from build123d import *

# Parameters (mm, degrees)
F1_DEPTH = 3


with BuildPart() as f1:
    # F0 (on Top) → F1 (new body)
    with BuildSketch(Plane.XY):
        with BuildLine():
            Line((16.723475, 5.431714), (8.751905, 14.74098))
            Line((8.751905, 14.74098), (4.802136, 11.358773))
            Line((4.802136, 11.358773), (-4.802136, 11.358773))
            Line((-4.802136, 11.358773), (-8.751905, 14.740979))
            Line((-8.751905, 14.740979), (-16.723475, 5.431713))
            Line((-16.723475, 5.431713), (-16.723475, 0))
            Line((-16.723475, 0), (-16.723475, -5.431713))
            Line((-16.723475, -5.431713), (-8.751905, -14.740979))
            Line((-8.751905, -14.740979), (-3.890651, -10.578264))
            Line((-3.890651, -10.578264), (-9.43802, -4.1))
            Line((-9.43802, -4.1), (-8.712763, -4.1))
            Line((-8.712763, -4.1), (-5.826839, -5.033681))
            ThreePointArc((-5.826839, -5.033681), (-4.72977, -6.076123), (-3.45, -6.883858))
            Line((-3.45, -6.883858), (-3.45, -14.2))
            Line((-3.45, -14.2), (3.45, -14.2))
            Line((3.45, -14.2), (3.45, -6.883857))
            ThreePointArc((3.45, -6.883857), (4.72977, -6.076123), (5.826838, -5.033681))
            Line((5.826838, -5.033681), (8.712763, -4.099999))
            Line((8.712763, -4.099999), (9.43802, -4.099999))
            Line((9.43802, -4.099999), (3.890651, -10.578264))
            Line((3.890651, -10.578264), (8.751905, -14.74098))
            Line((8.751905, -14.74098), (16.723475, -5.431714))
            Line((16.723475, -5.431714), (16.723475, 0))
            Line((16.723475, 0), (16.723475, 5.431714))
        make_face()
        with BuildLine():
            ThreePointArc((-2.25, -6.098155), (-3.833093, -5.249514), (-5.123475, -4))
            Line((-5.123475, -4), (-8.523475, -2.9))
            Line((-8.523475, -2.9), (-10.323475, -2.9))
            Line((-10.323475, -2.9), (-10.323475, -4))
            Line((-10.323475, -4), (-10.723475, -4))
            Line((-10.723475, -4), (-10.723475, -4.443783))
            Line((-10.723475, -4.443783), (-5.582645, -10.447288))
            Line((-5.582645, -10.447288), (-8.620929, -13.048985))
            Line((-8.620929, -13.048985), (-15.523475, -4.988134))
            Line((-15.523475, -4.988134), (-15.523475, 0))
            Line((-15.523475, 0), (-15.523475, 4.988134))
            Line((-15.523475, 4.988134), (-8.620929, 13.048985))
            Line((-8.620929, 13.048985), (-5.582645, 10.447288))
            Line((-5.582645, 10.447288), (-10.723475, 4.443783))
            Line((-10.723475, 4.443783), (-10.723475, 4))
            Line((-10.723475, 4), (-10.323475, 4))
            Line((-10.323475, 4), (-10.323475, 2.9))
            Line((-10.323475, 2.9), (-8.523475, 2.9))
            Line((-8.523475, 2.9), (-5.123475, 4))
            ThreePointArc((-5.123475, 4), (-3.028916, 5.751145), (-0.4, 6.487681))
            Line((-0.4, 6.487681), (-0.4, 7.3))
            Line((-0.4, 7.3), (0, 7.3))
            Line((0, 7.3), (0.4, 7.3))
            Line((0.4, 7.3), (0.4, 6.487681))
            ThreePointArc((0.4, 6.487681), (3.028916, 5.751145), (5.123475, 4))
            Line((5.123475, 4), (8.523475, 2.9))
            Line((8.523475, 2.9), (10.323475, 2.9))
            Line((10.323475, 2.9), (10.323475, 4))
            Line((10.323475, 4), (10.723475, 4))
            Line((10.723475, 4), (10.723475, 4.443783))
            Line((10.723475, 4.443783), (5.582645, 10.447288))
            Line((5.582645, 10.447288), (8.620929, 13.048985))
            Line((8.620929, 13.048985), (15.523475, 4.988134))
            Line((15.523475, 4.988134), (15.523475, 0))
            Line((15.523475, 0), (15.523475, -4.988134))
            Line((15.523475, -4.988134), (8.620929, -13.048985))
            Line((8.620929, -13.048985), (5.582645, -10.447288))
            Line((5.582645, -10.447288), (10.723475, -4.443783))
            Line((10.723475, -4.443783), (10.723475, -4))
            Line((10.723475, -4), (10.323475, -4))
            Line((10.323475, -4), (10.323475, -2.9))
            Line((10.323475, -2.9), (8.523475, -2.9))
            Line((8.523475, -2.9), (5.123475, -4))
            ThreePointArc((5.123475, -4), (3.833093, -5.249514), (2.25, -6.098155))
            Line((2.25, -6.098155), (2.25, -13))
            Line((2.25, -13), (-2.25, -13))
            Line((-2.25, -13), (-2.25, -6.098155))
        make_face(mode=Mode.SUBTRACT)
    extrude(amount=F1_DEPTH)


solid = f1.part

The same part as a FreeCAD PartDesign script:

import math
import FreeCAD as App
import Part
import Sketcher

V = App.Vector

doc = App.newDocument("Part")
body = doc.addObject("PartDesign::Body", "Body")

sketch1 = doc.addObject("Sketcher::SketchObject", "Sketch")
body.addObject(sketch1)
sketch1.AttachmentSupport = (doc.XY_Plane, [""])
sketch1.MapMode = "FlatFace"
sketch1.addGeometry(Part.LineSegment(V(16.723475, 5.431714, 0), V(8.751905, 14.74098, 0)), False)
sketch1.addGeometry(Part.LineSegment(V(8.751905, 14.74098, 0), V(4.802136, 11.358773, 0)), False)
sketch1.addGeometry(Part.LineSegment(V(4.802136, 11.358773, 0), V(-4.802136, 11.358773, 0)), False)
sketch1.addGeometry(Part.LineSegment(V(-4.802136, 11.358773, 0), V(-8.751905, 14.740979, 0)), False)
sketch1.addGeometry(Part.LineSegment(V(-8.751905, 14.740979, 0), V(-16.723475, 5.431713, 0)), False)
sketch1.addGeometry(Part.LineSegment(V(-16.723475, 5.431713, 0), V(-16.723475, -5.431713, 0)), False)
sketch1.addGeometry(Part.LineSegment(V(-16.723475, -5.431713, 0), V(-8.751905, -14.740979, 0)), False)
sketch1.addGeometry(Part.LineSegment(V(-8.751905, -14.740979, 0), V(-3.890651, -10.578264, 0)), False)
sketch1.addGeometry(Part.LineSegment(V(-3.890651, -10.578264, 0), V(-9.43802, -4.1, 0)), False)
sketch1.addGeometry(Part.LineSegment(V(-9.43802, -4.1, 0), V(-8.712763, -4.1, 0)), False)
sketch1.addGeometry(Part.LineSegment(V(-8.712763, -4.1, 0), V(-5.826839, -5.033681, 0)), False)
sketch1.addGeometry(Part.ArcOfCircle(Part.Circle(V(0.000009, 0.00001, 0), V(0, 0, 1), 7.700013), math.radians(-139.176955), math.radians(-116.618792)), False)
sketch1.addGeometry(Part.LineSegment(V(-3.45, -6.883858, 0), V(-3.45, -14.2, 0)), False)
sketch1.addGeometry(Part.LineSegment(V(-3.45, -14.2, 0), V(3.45, -14.2, 0)), False)
sketch1.addGeometry(Part.LineSegment(V(3.45, -14.2, 0), V(3.45, -6.883857, 0)), False)
sketch1.addGeometry(Part.ArcOfCircle(Part.Circle(V(0.000018, -0.000023, 0), V(0, 0, 1), 7.699971), math.radians(-63.38127), math.radians(-40.82299)), False)
sketch1.addGeometry(Part.LineSegment(V(5.826838, -5.033681, 0), V(8.712763, -4.099999, 0)), False)
sketch1.addGeometry(Part.LineSegment(V(8.712763, -4.099999, 0), V(9.43802, -4.099999, 0)), False)
sketch1.addGeometry(Part.LineSegment(V(9.43802, -4.099999, 0), V(3.890651, -10.578264, 0)), False)
sketch1.addGeometry(Part.LineSegment(V(3.890651, -10.578264, 0), V(8.751905, -14.74098, 0)), False)
sketch1.addGeometry(Part.LineSegment(V(8.751905, -14.74098, 0), V(16.723475, -5.431714, 0)), False)
sketch1.addGeometry(Part.LineSegment(V(16.723475, -5.431714, 0), V(16.723475, 5.431714, 0)), False)
sketch1.addGeometry(Part.LineSegment(V(-2.25, -13, 0), V(-2.25, -6.098155, 0)), False)
sketch1.addGeometry(Part.ArcOfCircle(Part.Circle(V(-0.000005, -0.000006, 0), V(0, 0, 1), 6.499992), math.radians(-142.020143), math.radians(-110.252227)), False)
sketch1.addGeometry(Part.LineSegment(V(-5.123475, -4, 0), V(-8.523475, -2.9, 0)), False)
sketch1.addGeometry(Part.LineSegment(V(-8.523475, -2.9, 0), V(-10.323475, -2.9, 0)), False)
sketch1.addGeometry(Part.LineSegment(V(-10.323475, -2.9, 0), V(-10.323475, -4, 0)), False)
sketch1.addGeometry(Part.LineSegment(V(-10.323475, -4, 0), V(-10.723475, -4, 0)), False)
sketch1.addGeometry(Part.LineSegment(V(-10.723475, -4, 0), V(-10.723475, -4.443783, 0)), False)
sketch1.addGeometry(Part.LineSegment(V(-10.723475, -4.443783, 0), V(-5.582645, -10.447288, 0)), False)
sketch1.addGeometry(Part.LineSegment(V(-5.582645, -10.447288, 0), V(-8.620929, -13.048985, 0)), False)
sketch1.addGeometry(Part.LineSegment(V(-8.620929, -13.048985, 0), V(-15.523475, -4.988134, 0)), False)
sketch1.addGeometry(Part.LineSegment(V(-15.523475, -4.988134, 0), V(-15.523475, 4.988134, 0)), False)
sketch1.addGeometry(Part.LineSegment(V(-15.523475, 4.988134, 0), V(-8.620929, 13.048985, 0)), False)
sketch1.addGeometry(Part.LineSegment(V(-8.620929, 13.048985, 0), V(-5.582645, 10.447288, 0)), False)
sketch1.addGeometry(Part.LineSegment(V(-5.582645, 10.447288, 0), V(-10.723475, 4.443783, 0)), False)
sketch1.addGeometry(Part.LineSegment(V(-10.723475, 4.443783, 0), V(-10.723475, 4, 0)), False)
sketch1.addGeometry(Part.LineSegment(V(-10.723475, 4, 0), V(-10.323475, 4, 0)), False)
sketch1.addGeometry(Part.LineSegment(V(-10.323475, 4, 0), V(-10.323475, 2.9, 0)), False)
sketch1.addGeometry(Part.LineSegment(V(-10.323475, 2.9, 0), V(-8.523475, 2.9, 0)), False)
sketch1.addGeometry(Part.LineSegment(V(-8.523475, 2.9, 0), V(-5.123475, 4, 0)), False)
sketch1.addGeometry(Part.ArcOfCircle(Part.Circle(V(0.000001, 0.000001, 0), V(0, 0, 1), 6.5), math.radians(93.528128), math.radians(142.020134)), False)
sketch1.addGeometry(Part.LineSegment(V(-0.4, 6.487681, 0), V(-0.4, 7.3, 0)), False)
sketch1.addGeometry(Part.LineSegment(V(-0.4, 7.3, 0), V(0.4, 7.3, 0)), False)
sketch1.addGeometry(Part.LineSegment(V(0.4, 7.3, 0), V(0.4, 6.487681, 0)), False)
sketch1.addGeometry(Part.ArcOfCircle(Part.Circle(V(-0.000001, 0.000001, 0), V(0, 0, 1), 6.5), math.radians(37.979866), math.radians(86.471872)), False)
sketch1.addGeometry(Part.LineSegment(V(5.123475, 4, 0), V(8.523475, 2.9, 0)), False)
sketch1.addGeometry(Part.LineSegment(V(8.523475, 2.9, 0), V(10.323475, 2.9, 0)), False)
sketch1.addGeometry(Part.LineSegment(V(10.323475, 2.9, 0), V(10.323475, 4, 0)), False)
sketch1.addGeometry(Part.LineSegment(V(10.323475, 4, 0), V(10.723475, 4, 0)), False)
sketch1.addGeometry(Part.LineSegment(V(10.723475, 4, 0), V(10.723475, 4.443783, 0)), False)
sketch1.addGeometry(Part.LineSegment(V(10.723475, 4.443783, 0), V(5.582645, 10.447288, 0)), False)
sketch1.addGeometry(Part.LineSegment(V(5.582645, 10.447288, 0), V(8.620929, 13.048985, 0)), False)
sketch1.addGeometry(Part.LineSegment(V(8.620929, 13.048985, 0), V(15.523475, 4.988134, 0)), False)
sketch1.addGeometry(Part.LineSegment(V(15.523475, 4.988134, 0), V(15.523475, -4.988134, 0)), False)
sketch1.addGeometry(Part.LineSegment(V(15.523475, -4.988134, 0), V(8.620929, -13.048985, 0)), False)
sketch1.addGeometry(Part.LineSegment(V(8.620929, -13.048985, 0), V(5.582645, -10.447288, 0)), False)
sketch1.addGeometry(Part.LineSegment(V(5.582645, -10.447288, 0), V(10.723475, -4.443783, 0)), False)
sketch1.addGeometry(Part.LineSegment(V(10.723475, -4.443783, 0), V(10.723475, -4, 0)), False)
sketch1.addGeometry(Part.LineSegment(V(10.723475, -4, 0), V(10.323475, -4, 0)), False)
sketch1.addGeometry(Part.LineSegment(V(10.323475, -4, 0), V(10.323475, -2.9, 0)), False)
sketch1.addGeometry(Part.LineSegment(V(10.323475, -2.9, 0), V(8.523475, -2.9, 0)), False)
sketch1.addGeometry(Part.LineSegment(V(8.523475, -2.9, 0), V(5.123475, -4, 0)), False)
sketch1.addGeometry(Part.ArcOfCircle(Part.Circle(V(0.000005, -0.000006, 0), V(0, 0, 1), 6.499992), math.radians(-69.747773), math.radians(-37.979857)), False)
sketch1.addGeometry(Part.LineSegment(V(2.25, -6.098155, 0), V(2.25, -13, 0)), False)
sketch1.addGeometry(Part.LineSegment(V(2.25, -13, 0), V(-2.25, -13, 0)), False)
sketch1.addConstraint(Sketcher.Constraint("Coincident", 0, 2, 1, 1))
sketch1.addConstraint(Sketcher.Constraint("Coincident", 1, 2, 2, 1))
sketch1.addConstraint(Sketcher.Constraint("Coincident", 2, 2, 3, 1))
sketch1.addConstraint(Sketcher.Constraint("Coincident", 3, 2, 4, 1))
sketch1.addConstraint(Sketcher.Constraint("Coincident", 4, 2, 5, 1))
sketch1.addConstraint(Sketcher.Constraint("Coincident", 5, 2, 6, 1))
sketch1.addConstraint(Sketcher.Constraint("Coincident", 6, 2, 7, 1))
sketch1.addConstraint(Sketcher.Constraint("Coincident", 7, 2, 8, 1))
sketch1.addConstraint(Sketcher.Constraint("Coincident", 8, 2, 9, 1))
sketch1.addConstraint(Sketcher.Constraint("Coincident", 9, 2, 10, 1))
sketch1.addConstraint(Sketcher.Constraint("Coincident", 10, 2, 11, 1))
sketch1.addConstraint(Sketcher.Constraint("Coincident", 11, 2, 12, 1))
sketch1.addConstraint(Sketcher.Constraint("Coincident", 12, 2, 13, 1))
sketch1.addConstraint(Sketcher.Constraint("Coincident", 13, 2, 14, 1))
sketch1.addConstraint(Sketcher.Constraint("Coincident", 14, 2, 15, 1))
sketch1.addConstraint(Sketcher.Constraint("Coincident", 15, 2, 16, 1))
sketch1.addConstraint(Sketcher.Constraint("Coincident", 16, 2, 17, 1))
sketch1.addConstraint(Sketcher.Constraint("Coincident", 17, 2, 18, 1))
sketch1.addConstraint(Sketcher.Constraint("Coincident", 18, 2, 19, 1))
sketch1.addConstraint(Sketcher.Constraint("Coincident", 19, 2, 20, 1))
sketch1.addConstraint(Sketcher.Constraint("Coincident", 20, 2, 21, 1))
sketch1.addConstraint(Sketcher.Constraint("Coincident", 21, 2, 0, 1))
sketch1.addConstraint(Sketcher.Constraint("Coincident", 22, 2, 23, 2))
sketch1.addConstraint(Sketcher.Constraint("Coincident", 23, 1, 24, 1))
sketch1.addConstraint(Sketcher.Constraint("Coincident", 24, 2, 25, 1))
sketch1.addConstraint(Sketcher.Constraint("Coincident", 25, 2, 26, 1))
sketch1.addConstraint(Sketcher.Constraint("Coincident", 26, 2, 27, 1))
sketch1.addConstraint(Sketcher.Constraint("Coincident", 27, 2, 28, 1))
sketch1.addConstraint(Sketcher.Constraint("Coincident", 28, 2, 29, 1))
sketch1.addConstraint(Sketcher.Constraint("Coincident", 29, 2, 30, 1))
sketch1.addConstraint(Sketcher.Constraint("Coincident", 30, 2, 31, 1))
sketch1.addConstraint(Sketcher.Constraint("Coincident", 31, 2, 32, 1))
sketch1.addConstraint(Sketcher.Constraint("Coincident", 32, 2, 33, 1))
sketch1.addConstraint(Sketcher.Constraint("Coincident", 33, 2, 34, 1))
sketch1.addConstraint(Sketcher.Constraint("Coincident", 34, 2, 35, 1))
sketch1.addConstraint(Sketcher.Constraint("Coincident", 35, 2, 36, 1))
sketch1.addConstraint(Sketcher.Constraint("Coincident", 36, 2, 37, 1))
sketch1.addConstraint(Sketcher.Constraint("Coincident", 37, 2, 38, 1))
sketch1.addConstraint(Sketcher.Constraint("Coincident", 38, 2, 39, 1))
sketch1.addConstraint(Sketcher.Constraint("Coincident", 39, 2, 40, 1))
sketch1.addConstraint(Sketcher.Constraint("Coincident", 40, 2, 41, 2))
sketch1.addConstraint(Sketcher.Constraint("Coincident", 41, 1, 42, 1))
sketch1.addConstraint(Sketcher.Constraint("Coincident", 42, 2, 43, 1))
sketch1.addConstraint(Sketcher.Constraint("Coincident", 43, 2, 44, 1))
sketch1.addConstraint(Sketcher.Constraint("Coincident", 44, 2, 45, 2))
sketch1.addConstraint(Sketcher.Constraint("Coincident", 45, 1, 46, 1))
sketch1.addConstraint(Sketcher.Constraint("Coincident", 46, 2, 47, 1))
sketch1.addConstraint(Sketcher.Constraint("Coincident", 47, 2, 48, 1))
sketch1.addConstraint(Sketcher.Constraint("Coincident", 48, 2, 49, 1))
sketch1.addConstraint(Sketcher.Constraint("Coincident", 49, 2, 50, 1))
sketch1.addConstraint(Sketcher.Constraint("Coincident", 50, 2, 51, 1))
sketch1.addConstraint(Sketcher.Constraint("Coincident", 51, 2, 52, 1))
sketch1.addConstraint(Sketcher.Constraint("Coincident", 52, 2, 53, 1))
sketch1.addConstraint(Sketcher.Constraint("Coincident", 53, 2, 54, 1))
sketch1.addConstraint(Sketcher.Constraint("Coincident", 54, 2, 55, 1))
sketch1.addConstraint(Sketcher.Constraint("Coincident", 55, 2, 56, 1))
sketch1.addConstraint(Sketcher.Constraint("Coincident", 56, 2, 57, 1))
sketch1.addConstraint(Sketcher.Constraint("Coincident", 57, 2, 58, 1))
sketch1.addConstraint(Sketcher.Constraint("Coincident", 58, 2, 59, 1))
sketch1.addConstraint(Sketcher.Constraint("Coincident", 59, 2, 60, 1))
sketch1.addConstraint(Sketcher.Constraint("Coincident", 60, 2, 61, 1))
sketch1.addConstraint(Sketcher.Constraint("Coincident", 61, 2, 62, 1))
sketch1.addConstraint(Sketcher.Constraint("Coincident", 62, 2, 63, 2))
sketch1.addConstraint(Sketcher.Constraint("Coincident", 63, 1, 64, 1))
sketch1.addConstraint(Sketcher.Constraint("Coincident", 64, 2, 65, 1))
sketch1.addConstraint(Sketcher.Constraint("Coincident", 65, 2, 22, 1))
sketch1.addConstraint(Sketcher.Constraint("Horizontal", 2))
sketch1.addConstraint(Sketcher.Constraint("Vertical", 5))
sketch1.addConstraint(Sketcher.Constraint("Horizontal", 9))
sketch1.addConstraint(Sketcher.Constraint("Vertical", 12))
sketch1.addConstraint(Sketcher.Constraint("Horizontal", 13))
sketch1.addConstraint(Sketcher.Constraint("Vertical", 14))
sketch1.addConstraint(Sketcher.Constraint("Horizontal", 17))
sketch1.addConstraint(Sketcher.Constraint("Vertical", 21))
sketch1.addConstraint(Sketcher.Constraint("Vertical", 22))
sketch1.addConstraint(Sketcher.Constraint("Horizontal", 25))
sketch1.addConstraint(Sketcher.Constraint("Vertical", 26))
sketch1.addConstraint(Sketcher.Constraint("Horizontal", 27))
sketch1.addConstraint(Sketcher.Constraint("Vertical", 28))
sketch1.addConstraint(Sketcher.Constraint("Vertical", 32))
sketch1.addConstraint(Sketcher.Constraint("Vertical", 36))
sketch1.addConstraint(Sketcher.Constraint("Horizontal", 37))
sketch1.addConstraint(Sketcher.Constraint("Vertical", 38))
sketch1.addConstraint(Sketcher.Constraint("Horizontal", 39))
sketch1.addConstraint(Sketcher.Constraint("Vertical", 42))
sketch1.addConstraint(Sketcher.Constraint("Horizontal", 43))
sketch1.addConstraint(Sketcher.Constraint("Vertical", 44))
sketch1.addConstraint(Sketcher.Constraint("Horizontal", 47))
sketch1.addConstraint(Sketcher.Constraint("Vertical", 48))
sketch1.addConstraint(Sketcher.Constraint("Horizontal", 49))
sketch1.addConstraint(Sketcher.Constraint("Vertical", 50))
sketch1.addConstraint(Sketcher.Constraint("Vertical", 54))
sketch1.addConstraint(Sketcher.Constraint("Vertical", 58))
sketch1.addConstraint(Sketcher.Constraint("Horizontal", 59))
sketch1.addConstraint(Sketcher.Constraint("Vertical", 60))
sketch1.addConstraint(Sketcher.Constraint("Horizontal", 61))
sketch1.addConstraint(Sketcher.Constraint("Vertical", 64))
sketch1.addConstraint(Sketcher.Constraint("Horizontal", 65))
sketch1.addConstraint(Sketcher.Constraint("Coincident", 23, 3, -1, 1))
sketch1.addConstraint(Sketcher.Constraint("Coincident", 41, 3, -1, 1))
sketch1.addConstraint(Sketcher.Constraint("Coincident", 45, 3, -1, 1))
sketch1.addConstraint(Sketcher.Constraint("Coincident", 63, 3, -1, 1))
sketch1.addConstraint(Sketcher.Constraint("Radius", 41, 6.5))
sketch1.addConstraint(Sketcher.Constraint("Radius", 45, 6.5))
sketch1.addConstraint(Sketcher.Constraint("Distance", 30, 4.0))
sketch1.addConstraint(Sketcher.Constraint("Distance", 34, 4.0))
sketch1.addConstraint(Sketcher.Constraint("Distance", 52, 4.0))
sketch1.addConstraint(Sketcher.Constraint("Distance", 56, 4.0))
sketch1.addConstraint(Sketcher.Constraint("DistanceX", 13, 1, 13, 2, 6.9))
sketch1.addConstraint(Sketcher.Constraint("DistanceX", 25, 2, 25, 1, 1.8))
sketch1.addConstraint(Sketcher.Constraint("DistanceX", 27, 2, 27, 1, 0.4))
sketch1.addConstraint(Sketcher.Constraint("DistanceX", 37, 1, 37, 2, 0.4))
sketch1.addConstraint(Sketcher.Constraint("DistanceX", 39, 1, 39, 2, 1.8))
sketch1.addConstraint(Sketcher.Constraint("DistanceX", 43, 1, 43, 2, 0.8))
sketch1.addConstraint(Sketcher.Constraint("DistanceX", 47, 1, 47, 2, 1.8))
sketch1.addConstraint(Sketcher.Constraint("DistanceX", 49, 1, 49, 2, 0.4))
sketch1.addConstraint(Sketcher.Constraint("DistanceX", 59, 2, 59, 1, 0.4))
sketch1.addConstraint(Sketcher.Constraint("DistanceX", 61, 2, 61, 1, 1.8))
sketch1.addConstraint(Sketcher.Constraint("DistanceX", 65, 2, 65, 1, 4.5))
sketch1.addConstraint(Sketcher.Constraint("DistanceY", 26, 2, 26, 1, 1.1))
sketch1.addConstraint(Sketcher.Constraint("DistanceY", 38, 2, 38, 1, 1.1))
sketch1.addConstraint(Sketcher.Constraint("DistanceY", 48, 1, 48, 2, 1.1))
sketch1.addConstraint(Sketcher.Constraint("DistanceY", 60, 1, 60, 2, 1.1))
sketch1.addConstraint(Sketcher.Constraint("DistanceY", 23, 1, -1, 1, 4.0))
sketch1.addConstraint(Sketcher.Constraint("DistanceY", 26, 2, -1, 1, 4.0))
sketch1.addConstraint(Sketcher.Constraint("DistanceY", -1, 1, 36, 2, 4.0))
sketch1.addConstraint(Sketcher.Constraint("DistanceY", -1, 1, 40, 2, 4.0))
sketch1.addConstraint(Sketcher.Constraint("DistanceY", -1, 1, 45, 1, 4.0))
sketch1.addConstraint(Sketcher.Constraint("DistanceY", -1, 1, 48, 2, 4.0))
sketch1.addConstraint(Sketcher.Constraint("DistanceY", 58, 2, -1, 1, 4.0))
sketch1.addConstraint(Sketcher.Constraint("DistanceY", 62, 2, -1, 1, 4.0))
sketch1.addConstraint(Sketcher.Constraint("DistanceY", 64, 2, -1, 1, 13.0))
sketch1.addConstraint(Sketcher.Constraint("Distance", 1, 5.2))
sketch1.addConstraint(Sketcher.Constraint("Distance", 3, 5.199999))
sketch1.addConstraint(Sketcher.Constraint("Distance", 7, 6.399999))
sketch1.addConstraint(Sketcher.Constraint("Distance", 19, 6.4))
sketch1.addConstraint(Sketcher.Constraint("DistanceY", 8, 2, -1, 1, 4.1))
sketch1.addConstraint(Sketcher.Constraint("DistanceY", 12, 2, -1, 1, 14.2))
sketch1.addConstraint(Sketcher.Constraint("DistanceY", 16, 2, -1, 1, 4.099999))
sketch1.addConstraint(Sketcher.Constraint("DistanceX", 41, 1, -1, 1, 0.4))
sketch1.addConstraint(Sketcher.Constraint("DistanceY", -1, 1, 42, 2, 7.3))
sketch1.addConstraint(Sketcher.Constraint("DistanceX", 11, 2, -1, 1, 3.45))
sketch1.addConstraint(Sketcher.Constraint("DistanceX", 22, 2, -1, 1, 2.25))
sketch1.addConstraint(Sketcher.Constraint("Radius", 15, 7.699971))
sketch1.addConstraint(Sketcher.Constraint("Radius", 23, 6.499992))
sketch1.addConstraint(Sketcher.Constraint("Radius", 63, 6.499992))
sketch1.addConstraint(Sketcher.Constraint("Radius", 11, 7.700013))
sketch1.addConstraint(Sketcher.Constraint("DistanceY", 12, 2, 12, 1, 7.316142))
sketch1.addConstraint(Sketcher.Constraint("DistanceY", 21, 1, 21, 2, 10.863428))
sketch1.addConstraint(Sketcher.Constraint("Distance", 29, 7.90381))
sketch1.addConstraint(Sketcher.Constraint("Distance", 35, 7.90381))
sketch1.addConstraint(Sketcher.Constraint("Distance", 51, 7.90381))
sketch1.addConstraint(Sketcher.Constraint("Distance", 57, 7.90381))
sketch1.addConstraint(Sketcher.Constraint("DistanceX", 2, 2, 2, 1, 9.604272))
sketch1.addConstraint(Sketcher.Constraint("DistanceX", 9, 1, 9, 2, 0.725257))
sketch1.addConstraint(Sketcher.Constraint("DistanceX", 17, 1, 17, 2, 0.725257))
sketch1.addConstraint(Sketcher.Constraint("DistanceY", 5, 2, 5, 1, 10.863426))
sketch1.addConstraint(Sketcher.Constraint("DistanceY", 14, 1, 14, 2, 7.316143))
sketch1.addConstraint(Sketcher.Constraint("DistanceY", 28, 2, 28, 1, 0.443783))
sketch1.addConstraint(Sketcher.Constraint("DistanceY", 32, 1, 32, 2, 9.976268))
sketch1.addConstraint(Sketcher.Constraint("DistanceY", 36, 2, 36, 1, 0.443783))
sketch1.addConstraint(Sketcher.Constraint("DistanceY", 50, 1, 50, 2, 0.443783))
sketch1.addConstraint(Sketcher.Constraint("DistanceY", 54, 2, 54, 1, 9.976268))
sketch1.addConstraint(Sketcher.Constraint("DistanceY", 58, 1, 58, 2, 0.443783))
sketch1.addConstraint(Sketcher.Constraint("DistanceY", -1, 1, 0, 2, 14.74098))
sketch1.addConstraint(Sketcher.Constraint("DistanceY", -1, 1, 3, 2, 14.740979))
sketch1.addConstraint(Sketcher.Constraint("DistanceY", 6, 2, -1, 1, 14.740979))
sketch1.addConstraint(Sketcher.Constraint("DistanceX", 7, 2, -1, 1, 3.890651))
sketch1.addConstraint(Sketcher.Constraint("DistanceX", 8, 2, -1, 1, 9.43802))
sketch1.addConstraint(Sketcher.Constraint("DistanceX", 10, 2, -1, 1, 5.826839))
sketch1.addConstraint(Sketcher.Constraint("DistanceY", 10, 2, -1, 1, 5.033681))
sketch1.addConstraint(Sketcher.Constraint("DistanceX", -1, 1, 15, 2, 5.826838))
sketch1.addConstraint(Sketcher.Constraint("DistanceY", 15, 2, -1, 1, 5.033681))
sketch1.addConstraint(Sketcher.Constraint("DistanceX", -1, 1, 17, 2, 9.43802))
sketch1.addConstraint(Sketcher.Constraint("DistanceX", -1, 1, 18, 2, 3.890651))
sketch1.addConstraint(Sketcher.Constraint("DistanceY", 19, 2, -1, 1, 14.74098))
sketch1.addConstraint(Sketcher.Constraint("DistanceX", 30, 2, -1, 1, 8.620929))
sketch1.addConstraint(Sketcher.Constraint("DistanceX", 33, 2, -1, 1, 8.620929))
sketch1.addConstraint(Sketcher.Constraint("DistanceX", -1, 1, 52, 2, 8.620929))
sketch1.addConstraint(Sketcher.Constraint("DistanceX", -1, 1, 55, 2, 8.620929))
sketch1.addConstraint(Sketcher.Constraint("Distance", 0, 12.255952))
sketch1.addConstraint(Sketcher.Constraint("Distance", 4, 12.255952))
sketch1.addConstraint(Sketcher.Constraint("Distance", 6, 12.255952))
sketch1.addConstraint(Sketcher.Constraint("Distance", 8, 8.528846))
sketch1.addConstraint(Sketcher.Constraint("Distance", 18, 8.528846))
sketch1.addConstraint(Sketcher.Constraint("Distance", 20, 12.255952))
sketch1.addConstraint(Sketcher.Constraint("Distance", 24, 3.573514))
sketch1.addConstraint(Sketcher.Constraint("Distance", 31, 10.612373))
sketch1.addConstraint(Sketcher.Constraint("Distance", 33, 10.612373))
sketch1.addConstraint(Sketcher.Constraint("Distance", 40, 3.573514))
sketch1.addConstraint(Sketcher.Constraint("Distance", 46, 3.573514))
sketch1.addConstraint(Sketcher.Constraint("Distance", 53, 10.612373))
sketch1.addConstraint(Sketcher.Constraint("Distance", 55, 10.612373))
sketch1.addConstraint(Sketcher.Constraint("Distance", 62, 3.573514))
sketch1.addConstraint(Sketcher.Constraint("DistanceX", -1, 1, 0, 2, 8.751905))
sketch1.addConstraint(Sketcher.Constraint("DistanceX", -1, 1, 1, 2, 4.802136))
sketch1.addConstraint(Sketcher.Constraint("DistanceX", 29, 2, -1, 1, 5.582645))
sketch1.addConstraint(Sketcher.Constraint("DistanceX", 31, 2, -1, 1, 15.523475))
sketch1.addConstraint(Sketcher.Constraint("DistanceX", -1, 1, 51, 2, 5.582645))
sketch1.addConstraint(Sketcher.Constraint("DistanceX", -1, 1, 53, 2, 15.523475))
pad1 = doc.addObject("PartDesign::Pad", "Pad")
body.addObject(pad1)
pad1.Profile = sketch1
pad1.Length = 3

doc.recompute()
